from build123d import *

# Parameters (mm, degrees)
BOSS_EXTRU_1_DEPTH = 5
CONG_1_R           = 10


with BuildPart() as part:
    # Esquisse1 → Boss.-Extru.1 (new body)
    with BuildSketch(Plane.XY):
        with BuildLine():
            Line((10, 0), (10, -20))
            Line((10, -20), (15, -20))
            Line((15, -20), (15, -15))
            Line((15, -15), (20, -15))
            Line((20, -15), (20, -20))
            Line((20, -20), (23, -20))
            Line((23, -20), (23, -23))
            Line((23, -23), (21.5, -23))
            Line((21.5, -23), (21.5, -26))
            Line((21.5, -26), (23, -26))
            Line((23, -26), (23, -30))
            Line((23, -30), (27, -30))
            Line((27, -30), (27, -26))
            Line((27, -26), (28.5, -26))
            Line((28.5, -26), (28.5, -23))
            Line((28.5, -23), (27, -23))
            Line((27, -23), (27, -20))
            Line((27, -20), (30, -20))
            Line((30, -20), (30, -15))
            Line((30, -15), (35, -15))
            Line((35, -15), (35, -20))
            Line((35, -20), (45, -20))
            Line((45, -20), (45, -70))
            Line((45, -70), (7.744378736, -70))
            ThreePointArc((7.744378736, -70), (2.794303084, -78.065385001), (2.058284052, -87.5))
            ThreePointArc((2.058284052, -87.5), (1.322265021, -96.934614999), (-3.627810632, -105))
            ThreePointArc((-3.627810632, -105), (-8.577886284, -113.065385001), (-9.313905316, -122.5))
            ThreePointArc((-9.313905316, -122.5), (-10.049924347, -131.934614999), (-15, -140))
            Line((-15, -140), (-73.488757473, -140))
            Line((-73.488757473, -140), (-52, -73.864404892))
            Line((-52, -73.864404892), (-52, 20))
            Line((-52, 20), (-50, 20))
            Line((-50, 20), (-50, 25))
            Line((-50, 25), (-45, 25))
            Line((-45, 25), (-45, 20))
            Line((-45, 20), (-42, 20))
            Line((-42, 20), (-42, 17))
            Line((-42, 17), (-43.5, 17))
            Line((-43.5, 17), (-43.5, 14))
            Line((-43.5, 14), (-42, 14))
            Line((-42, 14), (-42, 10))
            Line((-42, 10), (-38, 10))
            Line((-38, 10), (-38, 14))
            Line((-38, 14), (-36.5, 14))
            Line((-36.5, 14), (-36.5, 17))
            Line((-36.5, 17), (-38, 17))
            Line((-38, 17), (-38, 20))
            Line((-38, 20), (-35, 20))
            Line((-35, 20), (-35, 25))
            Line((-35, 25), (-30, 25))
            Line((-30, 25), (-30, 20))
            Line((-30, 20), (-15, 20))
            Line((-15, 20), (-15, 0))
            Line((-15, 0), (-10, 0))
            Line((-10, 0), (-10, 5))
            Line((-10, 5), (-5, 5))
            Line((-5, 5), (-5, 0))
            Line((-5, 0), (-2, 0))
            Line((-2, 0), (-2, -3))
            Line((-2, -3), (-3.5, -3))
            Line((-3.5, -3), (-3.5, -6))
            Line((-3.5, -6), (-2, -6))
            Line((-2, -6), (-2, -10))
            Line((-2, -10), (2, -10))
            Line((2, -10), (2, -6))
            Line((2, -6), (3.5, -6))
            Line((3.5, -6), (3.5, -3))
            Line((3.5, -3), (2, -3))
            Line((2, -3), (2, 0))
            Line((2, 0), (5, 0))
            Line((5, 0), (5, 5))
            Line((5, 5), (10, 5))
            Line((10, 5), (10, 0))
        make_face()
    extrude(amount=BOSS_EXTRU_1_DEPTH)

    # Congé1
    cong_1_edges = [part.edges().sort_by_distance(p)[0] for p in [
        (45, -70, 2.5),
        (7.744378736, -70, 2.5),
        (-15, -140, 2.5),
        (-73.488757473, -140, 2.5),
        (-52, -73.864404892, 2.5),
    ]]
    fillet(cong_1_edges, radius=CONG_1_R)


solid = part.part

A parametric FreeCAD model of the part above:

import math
import FreeCAD as App
import Part
import Sketcher
Q = App.Units.Quantity


def edges_at(feature, points):
    """Names of the edges that pass closest to the given points."""
    edges = feature.Shape.Edges
    near = lambda p: min(range(len(edges)), key=lambda i: edges[i].distToShape(Part.Vertex(*p))[0])
    return sorted({f"Edge{near(p) + 1}" for p in points})

doc = App.newDocument("Part")
params = doc.addObject("Spreadsheet::Sheet", "Params")
for row, (alias, value) in enumerate([
    ("sketch1_width", "5 mm"),
    ("sketch1_width2", "3 mm"),
    ("sketch1_width3", "4 mm"),
    ("sketch1_width4", "2 mm"),
    ("sketch1_height", "25 mm"),
    ("pad1_length", "5 mm"),
    ("fillet_radius", "10 mm"),
], start=1):
    params.set(f"A{row}", alias)
    params.set(f"B{row}", "=" + value)
    params.setAlias(f"B{row}", alias)

body = doc.addObject("PartDesign::Body", "Body")

# Sketch on XY plane
sketch1 = body.newObject("Sketcher::SketchObject", "Sketch")
sketch1.AttachmentSupport = (doc.getObject("XY_Plane"), [""])
sketch1.MapMode = "FlatFace"
sketch1.addGeometry([
    Part.LineSegment(App.Vector(15, -20, 0), App.Vector(10, -20, 0)),  # 0
    Part.LineSegment(App.Vector(10, -20, 0), App.Vector(10, 5, 0)),  # 1
    Part.LineSegment(App.Vector(10, 5, 0), App.Vector(5, 5, 0)),  # 2
    Part.LineSegment(App.Vector(5, 5, 0), App.Vector(5, 0, 0)),  # 3
    Part.LineSegment(App.Vector(5, 0, 0), App.Vector(2, 0, 0)),  # 4
    Part.LineSegment(App.Vector(2, 0, 0), App.Vector(2, -3, 0)),  # 5
    Part.LineSegment(App.Vector(2, -3, 0), App.Vector(3.5, -3, 0)),  # 6
    Part.LineSegment(App.Vector(3.5, -3, 0), App.Vector(3.5, -6, 0)),  # 7
    Part.LineSegment(App.Vector(3.5, -6, 0), App.Vector(2, -6, 0)),  # 8
    Part.LineSegment(App.Vector(2, -6, 0), App.Vector(2, -10, 0)),  # 9
    Part.LineSegment(App.Vector(2, -10, 0), App.Vector(-2, -10, 0)),  # 10
    Part.LineSegment(App.Vector(-2, -10, 0), App.Vector(-2, -6, 0)),  # 11
    Part.LineSegment(App.Vector(-2, -6, 0), App.Vector(-3.5, -6, 0)),  # 12
    Part.LineSegment(App.Vector(-3.5, -6, 0), App.Vector(-3.5, -3, 0)),  # 13
    Part.LineSegment(App.Vector(-3.5, -3, 0), App.Vector(-2, -3, 0)),  # 14
    Part.LineSegment(App.Vector(-2, -3, 0), App.Vector(-2, 0, 0)),  # 15
    Part.LineSegment(App.Vector(-2, 0, 0), App.Vector(-5, 0, 0)),  # 16
    Part.LineSegment(App.Vector(-5, 0, 0), App.Vector(-5, 5, 0)),  # 17
    Part.LineSegment(App.Vector(-5, 5, 0), App.Vector(-10, 5, 0)),  # 18
    Part.LineSegment(App.Vector(-10, 5, 0), App.Vector(-10, 0, 0)),  # 19
    Part.LineSegment(App.Vector(-10, 0, 0), App.Vector(-15, 0, 0)),  # 20
    Part.LineSegment(App.Vector(-15, 0, 0), App.Vector(-15, 20, 0)),  # 21
    Part.LineSegment(App.Vector(-15, 20, 0), App.Vector(-30, 20, 0)),  # 22
    Part.LineSegment(App.Vector(-30, 20, 0), App.Vector(-30, 25, 0)),  # 23
    Part.LineSegment(App.Vector(-30, 25, 0), App.Vector(-35, 25, 0)),  # 24
    Part.LineSegment(App.Vector(-35, 25, 0), App.Vector(-35, 20, 0)),  # 25
    Part.LineSegment(App.Vector(-35, 20, 0), App.Vector(-38, 20, 0)),  # 26
    Part.LineSegment(App.Vector(-38, 20, 0), App.Vector(-38, 17, 0)),  # 27
    Part.LineSegment(App.Vector(-38, 17, 0), App.Vector(-36.5, 17, 0)),  # 28
    Part.LineSegment(App.Vector(-36.5, 17, 0), App.Vector(-36.5, 14, 0)),  # 29
    Part.LineSegment(App.Vector(-36.5, 14, 0), App.Vector(-38, 14, 0)),  # 30
    Part.LineSegment(App.Vector(-38, 14, 0), App.Vector(-38, 10, 0)),  # 31
    Part.LineSegment(App.Vector(-38, 10, 0), App.Vector(-42, 10, 0)),  # 32
    Part.LineSegment(App.Vector(-42, 10, 0), App.Vector(-42, 14, 0)),  # 33
    Part.LineSegment(App.Vector(-42, 14, 0), App.Vector(-43.5, 14, 0)),  # 34
    Part.LineSegment(App.Vector(-43.5, 14, 0), App.Vector(-43.5, 17, 0)),  # 35
    Part.LineSegment(App.Vector(-43.5, 17, 0), App.Vector(-42, 17, 0)),  # 36
    Part.LineSegment(App.Vector(-42, 17, 0), App.Vector(-42, 20, 0)),  # 37
    Part.LineSegment(App.Vector(-42, 20, 0), App.Vector(-45, 20, 0)),  # 38
    Part.LineSegment(App.Vector(-45, 20, 0), App.Vector(-45, 25, 0)),  # 39
    Part.LineSegment(App.Vector(-45, 25, 0), App.Vector(-50, 25, 0)),  # 40
    Part.LineSegment(App.Vector(-50, 25, 0), App.Vector(-50, 20, 0)),  # 41
    Part.LineSegment(App.Vector(-50, 20, 0), App.Vector(-52, 20, 0)),  # 42
    Part.LineSegment(App.Vector(-52, 20, 0), App.Vector(-52, -73.9, 0)),  # 43
    Part.LineSegment(App.Vector(-52, -73.9, 0), App.Vector(-73.5, -140, 0)),  # 44
    Part.LineSegment(App.Vector(-73.5, -140, 0), App.Vector(-15, -140, 0)),  # 45
    Part.ArcOfCircle(Part.Circle(App.Vector(-29.3, -125.7, 0), App.Vector(0, 0, 1), 20.2), math.radians(-45), math.radians(9)),  # 46
    Part.ArcOfCircle(Part.Circle(App.Vector(10.6, -119.3, 0), App.Vector(0, 0, 1), 20.2), math.radians(135), math.radians(189)),  # 47
    Part.ArcOfCircle(Part.Circle(App.Vector(-17.9, -90.7, 0), App.Vector(0, 0, 1), 20.2), math.radians(-45), math.radians(9)),  # 48
    Part.ArcOfCircle(Part.Circle(App.Vector(22, -84.3, 0), App.Vector(0, 0, 1), 20.2), math.radians(135), math.radians(189)),  # 49
    Part.LineSegment(App.Vector(7.7, -70, 0), App.Vector(45, -70, 0)),  # 50
    Part.LineSegment(App.Vector(45, -70, 0), App.Vector(45, -20, 0)),  # 51
    Part.LineSegment(App.Vector(45, -20, 0), App.Vector(35, -20, 0)),  # 52
    Part.LineSegment(App.Vector(35, -20, 0), App.Vector(35, -15, 0)),  # 53
    Part.LineSegment(App.Vector(35, -15, 0), App.Vector(30, -15, 0)),  # 54
    Part.LineSegment(App.Vector(30, -15, 0), App.Vector(30, -20, 0)),  # 55
    Part.LineSegment(App.Vector(30, -20, 0), App.Vector(27, -20, 0)),  # 56
    Part.LineSegment(App.Vector(27, -20, 0), App.Vector(27, -23, 0)),  # 57
    Part.LineSegment(App.Vector(27, -23, 0), App.Vector(28.5, -23, 0)),  # 58
    Part.LineSegment(App.Vector(28.5, -23, 0), App.Vector(28.5, -26, 0)),  # 59
    Part.LineSegment(App.Vector(28.5, -26, 0), App.Vector(27, -26, 0)),  # 60
    Part.LineSegment(App.Vector(27, -26, 0), App.Vector(27, -30, 0)),  # 61
    Part.LineSegment(App.Vector(27, -30, 0), App.Vector(23, -30, 0)),  # 62
    Part.LineSegment(App.Vector(23, -30, 0), App.Vector(23, -26, 0)),  # 63
    Part.LineSegment(App.Vector(23, -26, 0), App.Vector(21.5, -26, 0)),  # 64
    Part.LineSegment(App.Vector(21.5, -26, 0), App.Vector(21.5, -23, 0)),  # 65
    Part.LineSegment(App.Vector(21.5, -23, 0), App.Vector(23, -23, 0)),  # 66
    Part.LineSegment(App.Vector(23, -23, 0), App.Vector(23, -20, 0)),  # 67
    Part.LineSegment(App.Vector(23, -20, 0), App.Vector(20, -20, 0)),  # 68
    Part.LineSegment(App.Vector(20, -20, 0), App.Vector(20, -15, 0)),  # 69
    Part.LineSegment(App.Vector(20, -15, 0), App.Vector(15, -15, 0)),  # 70
    Part.LineSegment(App.Vector(15, -15, 0), App.Vector(15, -20, 0)),  # 71
], False)
sketch1.addConstraint([
    Sketcher.Constraint("Coincident", 0, 2, 1, 1),
    Sketcher.Constraint("Coincident", 1, 2, 2, 1),
    Sketcher.Constraint("Coincident", 2, 2, 3, 1),
    Sketcher.Constraint("Coincident", 3, 2, 4, 1),
    Sketcher.Constraint("Coincident", 4, 2, 5, 1),
    Sketcher.Constraint("Coincident", 5, 2, 6, 1),
    Sketcher.Constraint("Coincident", 6, 2, 7, 1),
    Sketcher.Constraint("Coincident", 7, 2, 8, 1),
    Sketcher.Constraint("Coincident", 8, 2, 9, 1),
    Sketcher.Constraint("Coincident", 9, 2, 10, 1),
    Sketcher.Constraint("Coincident", 10, 2, 11, 1),
    Sketcher.Constraint("Coincident", 11, 2, 12, 1),
    Sketcher.Constraint("Coincident", 12, 2, 13, 1),
    Sketcher.Constraint("Coincident", 13, 2, 14, 1),
    Sketcher.Constraint("Coincident", 14, 2, 15, 1),
    Sketcher.Constraint("Coincident", 15, 2, 16, 1),
    Sketcher.Constraint("Coincident", 16, 2, 17, 1),
    Sketcher.Constraint("Coincident", 17, 2, 18, 1),
    Sketcher.Constraint("Coincident", 18, 2, 19, 1),
    Sketcher.Constraint("Coincident", 19, 2, 20, 1),
    Sketcher.Constraint("Coincident", 20, 2, 21, 1),
    Sketcher.Constraint("Coincident", 21, 2, 22, 1),
    Sketcher.Constraint("Coincident", 22, 2, 23, 1),
    Sketcher.Constraint("Coincident", 23, 2, 24, 1),
    Sketcher.Constraint("Coincident", 24, 2, 25, 1),
    Sketcher.Constraint("Coincident", 25, 2, 26, 1),
    Sketcher.Constraint("Coincident", 26, 2, 27, 1),
    Sketcher.Constraint("Coincident", 27, 2, 28, 1),
    Sketcher.Constraint("Coincident", 28, 2, 29, 1),
    Sketcher.Constraint("Coincident", 29, 2, 30, 1),
    Sketcher.Constraint("Coincident", 30, 2, 31, 1),
    Sketcher.Constraint("Coincident", 31, 2, 32, 1),
    Sketcher.Constraint("Coincident", 32, 2, 33, 1),
    Sketcher.Constraint("Coincident", 33, 2, 34, 1),
    Sketcher.Constraint("Coincident", 34, 2, 35, 1),
    Sketcher.Constraint("Coincident", 35, 2, 36, 1),
    Sketcher.Constraint("Coincident", 36, 2, 37, 1),
    Sketcher.Constraint("Coincident", 37, 2, 38, 1),
    Sketcher.Constraint("Coincident", 38, 2, 39, 1),
    Sketcher.Constraint("Coincident", 39, 2, 40, 1),
    Sketcher.Constraint("Coincident", 40, 2, 41, 1),
    Sketcher.Constraint("Coincident", 41, 2, 42, 1),
    Sketcher.Constraint("Coincident", 42, 2, 43, 1),
    Sketcher.Constraint("Coincident", 43, 2, 44, 1),
    Sketcher.Constraint("Coincident", 44, 2, 45, 1),
    Sketcher.Constraint("Coincident", 45, 2, 46, 1),
    Sketcher.Constraint("Tangent", 46, 2, 47, 2),
    Sketcher.Constraint("Tangent", 47, 1, 48, 1),
    Sketcher.Constraint("Tangent", 48, 2, 49, 2),
    Sketcher.Constraint("Coincident", 49, 1, 50, 1),
    Sketcher.Constraint("Coincident", 50, 2, 51, 1),
    Sketcher.Constraint("Coincident", 51, 2, 52, 1),
    Sketcher.Constraint("Coincident", 52, 2, 53, 1),
    Sketcher.Constraint("Coincident", 53, 2, 54, 1),
    Sketcher.Constraint("Coincident", 54, 2, 55, 1),
    Sketcher.Constraint("Coincident", 55, 2, 56, 1),
    Sketcher.Constraint("Coincident", 56, 2, 57, 1),
    Sketcher.Constraint("Coincident", 57, 2, 58, 1),
    Sketcher.Constraint("Coincident", 58, 2, 59, 1),
    Sketcher.Constraint("Coincident", 59, 2, 60, 1),
    Sketcher.Constraint("Coincident", 60, 2, 61, 1),
    Sketcher.Constraint("Coincident", 61, 2, 62, 1),
    Sketcher.Constraint("Coincident", 62, 2, 63, 1),
    Sketcher.Constraint("Coincident", 63, 2, 64, 1),
    Sketcher.Constraint("Coincident", 64, 2, 65, 1),
    Sketcher.Constraint("Coincident", 65, 2, 66, 1),
    Sketcher.Constraint("Coincident", 66, 2, 67, 1),
    Sketcher.Constraint("Coincident", 67, 2, 68, 1),
    Sketcher.Constraint("Coincident", 68, 2, 69, 1),
    Sketcher.Constraint("Coincident", 69, 2, 70, 1),
    Sketcher.Constraint("Coincident", 70, 2, 71, 1),
    Sketcher.Constraint("Coincident", 71, 2, 0, 1),
    Sketcher.Constraint("Horizontal", 0),
    Sketcher.Constraint("Vertical", 1),
    Sketcher.Constraint("Horizontal", 2),
    Sketcher.Constraint("Vertical", 3),
    Sketcher.Constraint("Horizontal", 4),
    Sketcher.Constraint("Vertical", 5),
    Sketcher.Constraint("Horizontal", 6),
    Sketcher.Constraint("Vertical", 7),
    Sketcher.Constraint("Horizontal", 8),
    Sketcher.Constraint("Vertical", 9),
    Sketcher.Constraint("Horizontal", 10),
    Sketcher.Constraint("Vertical", 11),
    Sketcher.Constraint("Horizontal", 12),
    Sketcher.Constraint("Vertical", 13),
    Sketcher.Constraint("Horizontal", 14),
    Sketcher.Constraint("Vertical", 15),
    Sketcher.Constraint("Horizontal", 16),
    Sketcher.Constraint("Vertical", 17),
    Sketcher.Constraint("Horizontal", 18),
    Sketcher.Constraint("Vertical", 19),
    Sketcher.Constraint("Horizontal", 20),
    Sketcher.Constraint("Vertical", 21),
    Sketcher.Constraint("Horizontal", 22),
    Sketcher.Constraint("Vertical", 23),
    Sketcher.Constraint("Horizontal", 24),
    Sketcher.Constraint("Vertical", 25),
    Sketcher.Constraint("Horizontal", 26),
    Sketcher.Constraint("Vertical", 27),
    Sketcher.Constraint("Horizontal", 28),
    Sketcher.Constraint("Vertical", 29),
    Sketcher.Constraint("Horizontal", 30),
    Sketcher.Constraint("Vertical", 31),
    Sketcher.Constraint("Horizontal", 32),
    Sketcher.Constraint("Vertical", 33),
    Sketcher.Constraint("Horizontal", 34),
    Sketcher.Constraint("Vertical", 35),
    Sketcher.Constraint("Horizontal", 36),
    Sketcher.Constraint("Vertical", 37),
    Sketcher.Constraint("Horizontal", 38),
    Sketcher.Constraint("Vertical", 39),
    Sketcher.Constraint("Horizontal", 40),
    Sketcher.Constraint("Vertical", 41),
    Sketcher.Constraint("Horizontal", 42),
    Sketcher.Constraint("Vertical", 43),
    Sketcher.Constraint("Horizontal", 45),
    Sketcher.Constraint("Horizontal", 50),
    Sketcher.Constraint("Vertical", 51),
    Sketcher.Constraint("Horizontal", 52),
    Sketcher.Constraint("Vertical", 53),
    Sketcher.Constraint("Horizontal", 54),
    Sketcher.Constraint("Vertical", 55),
    Sketcher.Constraint("Horizontal", 56),
    Sketcher.Constraint("Vertical", 57),
    Sketcher.Constraint("Horizontal", 58),
    Sketcher.Constraint("Vertical", 59),
    Sketcher.Constraint("Horizontal", 60),
    Sketcher.Constraint("Vertical", 61),
    Sketcher.Constraint("Horizontal", 62),
    Sketcher.Constraint("Vertical", 63),
    Sketcher.Constraint("Horizontal", 64),
    Sketcher.Constraint("Vertical", 65),
    Sketcher.Constraint("Horizontal", 66),
    Sketcher.Constraint("Vertical", 67),
    Sketcher.Constraint("Horizontal", 68),
    Sketcher.Constraint("Vertical", 69),
    Sketcher.Constraint("Horizontal", 70),
    Sketcher.Constraint("Vertical", 71),
    Sketcher.Constraint("Equal", 46, 47),
    Sketcher.Constraint("Equal", 47, 48),
    Sketcher.Constraint("Equal", 48, 49),
    Sketcher.Constraint("Symmetric", 4, 2, 15, 2, -1, 1),
    Sketcher.Constraint("Symmetric", 38, 2, 51, 2, -1, 1),
    Sketcher.Constraint("Symmetric", 25, 2, 52, 2, -1, 1),
    Sketcher.Constraint("Symmetric", 22, 2, 55, 2, -1, 1),
    Sketcher.Constraint("Symmetric", 21, 2, 71, 2, -1, 1),
    Sketcher.Constraint("Symmetric", 8, 2, 11, 2, -2),
    Sketcher.Constraint("Symmetric", 6, 2, 13, 2, -2),
    Sketcher.Constraint("Symmetric", 3, 2, 16, 2, -2),
    Sketcher.Constraint("Symmetric", 1, 2, 18, 2, -2),
    Sketcher.Constraint("PointOnObject", 19, 2, -1),
    Sketcher.Constraint("Horizontal", 22, 2, 25, 2),
    Sketcher.Constraint("Horizontal", 30, 2, 33, 2),
    Sketcher.Constraint("Horizontal", 28, 2, 35, 2),
    Sketcher.Constraint("Horizontal", 24, 2, 39, 2),
    Sketcher.Constraint("Horizontal", 38, 2, 41, 2),
    Sketcher.Constraint("Horizontal", 60, 2, 63, 2),
    Sketcher.Constraint("Horizontal", 58, 2, 65, 2),
    Sketcher.Constraint("Horizontal", 56, 2, 67, 2),
    Sketcher.Constraint("Horizontal", 54, 2, 69, 2),
    Sketcher.Constraint("Vertical", 5, 2, 8, 2),
    Sketcher.Constraint("Vertical", 27, 2, 30, 2),
    Sketcher.Constraint("Vertical", 33, 2, 36, 2),
    Sketcher.Constraint("Vertical", 21, 2, 45, 2),
    Sketcher.Constraint("Vertical", 57, 2, 60, 2),
    Sketcher.Constraint("Vertical", 63, 2, 66, 2),
    Sketcher.Constraint("Equal", 0, 2),
    Sketcher.Constraint("Equal", 20, 24),
    Sketcher.Constraint("Equal", 16, 26),
    Sketcher.Constraint("Equal", 14, 28),
    Sketcher.Constraint("Equal", 10, 32),
    Sketcher.Constraint("Equal", 30, 34),
    Sketcher.Constraint("Equal", 26, 38),
    Sketcher.Constraint("Equal", 24, 40),
    Sketcher.Constraint("Equal", 38, 56),
    Sketcher.Constraint("Equal", 36, 58),
    Sketcher.Constraint("Equal", 32, 62),
    Sketcher.Constraint("Equal", 60, 64),
    Sketcher.Constraint("Equal", 56, 68),
    Sketcher.Constraint("Equal", 54, 70),
    Sketcher.Constraint("Equal", 70, 3),
    Sketcher.Constraint("Equal", 68, 5),
    Sketcher.Constraint("Equal", 5, 7),
    Sketcher.Constraint("Equal", 62, 9),
    Sketcher.Constraint("Equal", 19, 23),
    Sketcher.Constraint("Equal", 15, 27),
    Sketcher.Constraint("Equal", 27, 29),
    Sketcher.Constraint("Equal", 11, 31),
    Sketcher.Constraint("Equal", 41, 53),
    Sketcher.Constraint("Equal", 37, 57),
    Sketcher.Constraint("Equal", 57, 59),
    Sketcher.Constraint("Equal", 33, 61),
    Sketcher.Constraint("DistanceX", 0, 2, 0, 1, 5.0),
    Sketcher.Constraint("DistanceX", 4, 2, 4, 1, 3.0),
    Sketcher.Constraint("DistanceX", 10, 2, 10, 1, 4.0),
    Sketcher.Constraint("DistanceX", 42, 2, 42, 1, 2.0),
    Sketcher.Constraint("DistanceY", 1, 1, 1, 2, 25.0),
    Sketcher.Constraint("DistanceY", 51, 1, 51, 2, 50.0),
    Sketcher.Constraint("Angle", 44, Q("-108 deg")),
    Sketcher.Constraint("DistanceX", 6, 1, 6, 2, 1.5),
    Sketcher.Constraint("DistanceY", 44, 2, -1, 1, 140.0),
    Sketcher.Constraint("DistanceY", 47, 1, -1, 1, 105.0),
    Sketcher.Constraint("DistanceY", 46, 2, -1, 1, 122.5),
    Sketcher.Constraint("DistanceY", 48, 2, -1, 1, 87.5),
    Sketcher.Constraint("Radius", 46, 20.211075),
    Sketcher.Constraint("DistanceX", 50, 1, 50, 2, 37.255621),
    Sketcher.Constraint("Distance", 44, 69.53908),
])
sketch1.setExpression("Constraints[193]", "Params.sketch1_width")
sketch1.setExpression("Constraints[194]", "Params.sketch1_width2")
sketch1.setExpression("Constraints[195]", "Params.sketch1_width3")
sketch1.setExpression("Constraints[196]", "Params.sketch1_width4")
sketch1.setExpression("Constraints[197]", "Params.sketch1_height")
pad1 = body.newObject("PartDesign::Pad", "Pad")
pad1.Profile = sketch1
pad1.setExpression("Length", "Params.pad1_length")
doc.recompute()

fillet = body.newObject("PartDesign::Fillet", "Fillet")
fillet.Base = (pad1, edges_at(pad1, [
    (45, -70, 2.5),
    (7.744, -70, 2.5),
    (-15, -140, 2.5),
    (-73.489, -140, 2.5),
    (-52, -73.864, 2.5),
]))
fillet.setExpression("Radius", "Params.fillet_radius")

doc.recompute()
